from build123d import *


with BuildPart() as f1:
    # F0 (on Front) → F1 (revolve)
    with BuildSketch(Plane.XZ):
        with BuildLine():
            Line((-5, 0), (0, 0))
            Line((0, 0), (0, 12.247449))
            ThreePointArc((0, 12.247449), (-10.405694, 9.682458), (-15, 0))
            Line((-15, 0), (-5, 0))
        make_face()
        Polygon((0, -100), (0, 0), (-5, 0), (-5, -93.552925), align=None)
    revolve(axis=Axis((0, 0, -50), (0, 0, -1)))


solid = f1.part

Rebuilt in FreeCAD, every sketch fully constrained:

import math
import FreeCAD as App
import Part
import Sketcher
from FreeCAD import Vector
Q = App.Units.Quantity

doc = App.newDocument("Part")
params = doc.addObject("Spreadsheet::Sheet", "Params")
for row, (alias, value) in enumerate([
    ("sketch1_radius", "12.500001 mm"),
    ("sketch1_width", "10 mm"),
    ("revolution_angle", "360 deg"),
], start=1):
    params.set(f"A{row}", alias)
    params.set(f"B{row}", "=" + value)
    params.setAlias(f"B{row}", alias)

body = doc.addObject("PartDesign::Body", "Body")

# Sketch on XZ plane
sketch1 = body.newObject("Sketcher::SketchObject", "Sketch")
sketch1.AttachmentSupport = (doc.getObject("XZ_Plane"), [""])
sketch1.MapMode = "FlatFace"
sketch1.addGeometry([
    Part.ArcOfCircle(Part.Circle(Vector(-2, 0, 0), Vector(0, 0, 1), 13), math.radians(78), math.radians(180)),  # 0
    Part.LineSegment(Vector(-15, 0, 0), Vector(-5, 0, 0)),  # 1
    Part.LineSegment(Vector(-5, 0, 0), Vector(-5, -94, 0)),  # 2
    Part.LineSegment(Vector(-5, -94, 0), Vector(0, -100, 0)),  # 3
    Part.LineSegment(Vector(0, -100, 0), Vector(0, 12, 0)),  # 4
], False)
sketch1.addConstraint([
    Sketcher.Constraint("Coincident", 0, 2, 1, 1),
    Sketcher.Constraint("Coincident", 1, 2, 2, 1),
    Sketcher.Constraint("Coincident", 2, 2, 3, 1),
    Sketcher.Constraint("Coincident", 3, 2, 4, 1),
    Sketcher.Constraint("Coincident", 4, 2, 0, 1),
    Sketcher.Constraint("Horizontal", 1),
    Sketcher.Constraint("Vertical", 2),
    Sketcher.Constraint("Vertical", 4),
    Sketcher.Constraint("PointOnObject", 0, 3, -1),
    Sketcher.Constraint("PointOnObject", 0, 2, -1),
    Sketcher.Constraint("PointOnObject", 3, 2, -2),
    Sketcher.Constraint("Radius", 0, Q("12.500001 mm")),
    Sketcher.Constraint("DistanceX", 1, 1, 1, 2, Q("10 mm")),
    Sketcher.Constraint("DistanceX", 0, 2, -1, 1, Q("15 mm")),
    Sketcher.Constraint("DistanceY", 3, 2, -1, 1, Q("100 mm")),
    Sketcher.Constraint("DistanceY", 2, 2, 2, 1, Q("93.552925 mm")),
])
sketch1.setExpression("Constraints[11]", "Params.sketch1_radius")
sketch1.setExpression("Constraints[12]", "Params.sketch1_width")
revolution = body.newObject("PartDesign::Revolution", "Revolution")
revolution.Profile = sketch1
revolution.ReferenceAxis = (sketch1, ["V_Axis"])
revolution.setExpression("Angle", "Params.revolution_angle")

doc.recompute()
